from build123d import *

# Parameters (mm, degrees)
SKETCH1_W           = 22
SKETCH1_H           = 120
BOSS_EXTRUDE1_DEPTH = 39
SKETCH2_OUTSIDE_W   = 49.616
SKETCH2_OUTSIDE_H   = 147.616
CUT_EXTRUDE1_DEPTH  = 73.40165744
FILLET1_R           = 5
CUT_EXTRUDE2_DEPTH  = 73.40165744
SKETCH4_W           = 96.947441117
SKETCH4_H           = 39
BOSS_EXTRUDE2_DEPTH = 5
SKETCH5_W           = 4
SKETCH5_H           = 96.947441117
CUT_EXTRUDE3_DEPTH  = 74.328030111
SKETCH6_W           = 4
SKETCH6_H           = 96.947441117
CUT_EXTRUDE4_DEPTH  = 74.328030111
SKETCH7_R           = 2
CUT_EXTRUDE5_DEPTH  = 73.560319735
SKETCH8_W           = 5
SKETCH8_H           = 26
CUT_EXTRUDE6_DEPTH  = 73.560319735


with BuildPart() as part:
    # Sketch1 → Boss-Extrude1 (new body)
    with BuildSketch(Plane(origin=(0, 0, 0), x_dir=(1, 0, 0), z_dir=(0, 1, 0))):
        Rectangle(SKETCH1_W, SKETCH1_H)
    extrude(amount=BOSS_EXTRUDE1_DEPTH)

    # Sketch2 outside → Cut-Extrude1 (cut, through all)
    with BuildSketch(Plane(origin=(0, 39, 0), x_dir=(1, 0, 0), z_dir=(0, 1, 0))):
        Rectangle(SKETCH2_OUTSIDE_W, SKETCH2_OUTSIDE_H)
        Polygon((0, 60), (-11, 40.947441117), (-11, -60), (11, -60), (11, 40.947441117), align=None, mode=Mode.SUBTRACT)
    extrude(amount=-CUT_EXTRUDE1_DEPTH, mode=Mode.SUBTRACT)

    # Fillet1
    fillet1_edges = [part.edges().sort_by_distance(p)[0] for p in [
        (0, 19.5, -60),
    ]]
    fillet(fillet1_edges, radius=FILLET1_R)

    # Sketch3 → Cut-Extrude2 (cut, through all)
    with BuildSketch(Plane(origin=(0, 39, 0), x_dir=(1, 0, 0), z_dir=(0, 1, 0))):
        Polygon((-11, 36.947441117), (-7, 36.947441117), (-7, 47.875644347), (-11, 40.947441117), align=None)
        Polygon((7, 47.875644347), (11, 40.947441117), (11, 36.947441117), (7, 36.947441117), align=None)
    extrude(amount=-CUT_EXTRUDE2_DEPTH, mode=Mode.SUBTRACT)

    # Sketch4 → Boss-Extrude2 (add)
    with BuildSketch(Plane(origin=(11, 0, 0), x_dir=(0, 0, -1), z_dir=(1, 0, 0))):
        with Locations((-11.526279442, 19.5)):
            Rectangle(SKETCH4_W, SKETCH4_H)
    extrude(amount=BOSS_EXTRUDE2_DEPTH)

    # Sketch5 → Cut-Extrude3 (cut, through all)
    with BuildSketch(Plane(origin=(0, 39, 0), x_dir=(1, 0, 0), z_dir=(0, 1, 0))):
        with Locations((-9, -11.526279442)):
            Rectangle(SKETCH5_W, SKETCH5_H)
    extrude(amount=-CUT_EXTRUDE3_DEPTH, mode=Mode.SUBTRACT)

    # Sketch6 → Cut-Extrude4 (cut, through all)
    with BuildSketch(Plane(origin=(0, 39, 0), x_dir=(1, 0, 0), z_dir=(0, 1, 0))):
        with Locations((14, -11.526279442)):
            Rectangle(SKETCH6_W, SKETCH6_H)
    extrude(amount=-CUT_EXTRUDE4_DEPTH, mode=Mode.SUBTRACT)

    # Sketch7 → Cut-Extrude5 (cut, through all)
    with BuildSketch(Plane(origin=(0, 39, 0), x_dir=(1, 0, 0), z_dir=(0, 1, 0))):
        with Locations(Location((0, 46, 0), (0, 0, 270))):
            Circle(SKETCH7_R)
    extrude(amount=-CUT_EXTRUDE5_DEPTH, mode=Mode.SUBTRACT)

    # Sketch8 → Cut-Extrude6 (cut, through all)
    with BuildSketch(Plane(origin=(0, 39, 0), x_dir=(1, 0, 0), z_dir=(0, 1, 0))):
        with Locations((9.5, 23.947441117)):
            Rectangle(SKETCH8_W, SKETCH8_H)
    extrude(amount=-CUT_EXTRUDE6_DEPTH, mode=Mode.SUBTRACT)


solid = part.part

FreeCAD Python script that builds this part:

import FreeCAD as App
import Part
import Sketcher
Q = App.Units.Quantity


def edges_at(feature, points):
    """Names of the edges that pass closest to the given points."""
    edges = feature.Shape.Edges
    near = lambda p: min(range(len(edges)), key=lambda i: edges[i].distToShape(Part.Vertex(*p))[0])
    return sorted({f"Edge{near(p) + 1}" for p in points})


def add_polygon(sketch, points):
    """Adds a closed chain of lines whose ends are joined by coincident constraints."""
    first, n = sketch.GeometryCount, len(points)
    for a, b in zip(points, points[1:] + points[:1]):
        sketch.addGeometry(Part.LineSegment(App.Vector(*a, 0), App.Vector(*b, 0)), False)
    for i in range(n):
        sketch.addConstraint(Sketcher.Constraint("Coincident", first + i, 2, first + (i + 1) % n, 1))

doc = App.newDocument("Part")
body = doc.addObject("PartDesign::Body", "Body")

# Sketch on XZ plane
sketch1 = doc.addObject("Sketcher::SketchObject", "Sketch")
body.addObject(sketch1)
sketch1.AttachmentSupport = (doc.XZ_Plane, [""])
sketch1.MapMode = "FlatFace"
add_polygon(sketch1, [(-11, -60), (-11, 60), (11, 60), (11, -60)])  # lines 0-3
sketch1.addConstraint([
    Sketcher.Constraint("Vertical", 0),
    Sketcher.Constraint("Horizontal", 1),
    Sketcher.Constraint("Vertical", 2),
    Sketcher.Constraint("Horizontal", 3),
    Sketcher.Constraint("Symmetric", 0, 2, 2, 2, -1, 1),
    Sketcher.Constraint("DistanceX", 1, 1, 1, 2, 22.0),
    Sketcher.Constraint("DistanceY", 0, 1, 0, 2, 120.0),
])
pad1 = doc.addObject("PartDesign::Pad", "Pad")
body.addObject(pad1)
pad1.Profile = sketch1
pad1.Length = 39
pad1.Reversed = True

# Sketch on XZ plane
sketch2 = doc.addObject("Sketcher::SketchObject", "Sketch001")
body.addObject(sketch2)
sketch2.AttachmentSupport = (doc.XZ_Plane, [""])
sketch2.MapMode = "FlatFace"
sketch2.AttachmentOffset = App.Placement(App.Vector(0, 0, -39), App.Rotation())
add_polygon(sketch2, [(-24.808, -73.808), (-24.808, 73.808), (24.808, 73.808), (24.808, -73.808)])  # lines 0-3
add_polygon(sketch2, [(-11, -40.947441), (0, -60), (11, -40.947441), (11, 60), (-11, 60)])  # lines 4-8
sketch2.addConstraint([
    Sketcher.Constraint("Vertical", 0),
    Sketcher.Constraint("Horizontal", 1),
    Sketcher.Constraint("Vertical", 2),
    Sketcher.Constraint("Horizontal", 3),
    Sketcher.Constraint("Vertical", 6),
    Sketcher.Constraint("Horizontal", 7),
    Sketcher.Constraint("Vertical", 8),
    Sketcher.Constraint("Symmetric", 0, 2, 2, 2, -1, 1),
    Sketcher.Constraint("Symmetric", 5, 2, 8, 2, -2),
    Sketcher.Constraint("PointOnObject", 4, 2, -2),
    Sketcher.Constraint("DistanceX", 7, 2, 7, 1, 22.0),
    Sketcher.Constraint("Angle", 4, Q("-60 deg")),
    Sketcher.Constraint("DistanceY", 4, 2, -1, 1, 60.0),
    Sketcher.Constraint("DistanceY", -1, 1, 6, 2, 60.0),
    Sketcher.Constraint("DistanceX", 1, 1, 1, 2, 49.616),
    Sketcher.Constraint("DistanceY", 0, 1, 0, 2, 147.616),
])
pocket1 = doc.addObject("PartDesign::Pocket", "Pocket")
body.addObject(pocket1)
pocket1.Profile = sketch2
pocket1.Type = "ThroughAll"
pocket1.Reversed = True
doc.recompute()

fillet = doc.addObject("PartDesign::Fillet", "Fillet")
body.addObject(fillet)
fillet.Base = (pocket1, edges_at(pocket1, [(0, 19.5, -60)]))
fillet.Radius = 5

# Sketch on XZ plane
sketch3 = doc.addObject("Sketcher::SketchObject", "Sketch002")
body.addObject(sketch3)
sketch3.AttachmentSupport = (doc.XZ_Plane, [""])
sketch3.MapMode = "FlatFace"
sketch3.AttachmentOffset = App.Placement(App.Vector(0, 0, -39), App.Rotation())
add_polygon(sketch3, [(-11, -36.947441), (-7, -36.947441), (-7, -47.875644), (-11, -40.947441)])  # lines 0-3
add_polygon(sketch3, [(11, -40.947441), (7, -47.875644), (7, -36.947441), (11, -36.947441)])  # lines 4-7
sketch3.addConstraint([
    Sketcher.Constraint("Horizontal", 0),
    Sketcher.Constraint("Vertical", 1),
    Sketcher.Constraint("Vertical", 3),
    Sketcher.Constraint("Vertical", 5),
    Sketcher.Constraint("Horizontal", 6),
    Sketcher.Constraint("Vertical", 7),
    Sketcher.Constraint("Symmetric", 1, 2, 4, 2, -2),
    Sketcher.Constraint("Symmetric", 3, 2, 6, 2, -2),
    Sketcher.Constraint("Horizontal", 2, 2, 7, 2),
    Sketcher.Constraint("Equal", 6, 3),
    Sketcher.Constraint("DistanceX", 0, 1, 0, 2, 4.0),
    Sketcher.Constraint("Angle", 2, Q("120 deg")),
    Sketcher.Constraint("DistanceX", 0, 2, -1, 1, 7.0),
    Sketcher.Constraint("DistanceY", 0, 2, -1, 1, 36.947441),
])
pocket2 = doc.addObject("PartDesign::Pocket", "Pocket001")
body.addObject(pocket2)
pocket2.Profile = sketch3
pocket2.Type = "ThroughAll"
pocket2.Reversed = True

# Sketch on YZ plane
sketch4 = doc.addObject("Sketcher::SketchObject", "Sketch003")
body.addObject(sketch4)
sketch4.AttachmentSupport = (doc.YZ_Plane, [""])
sketch4.MapMode = "FlatFace"
sketch4.AttachmentOffset = App.Placement(App.Vector(0, 0, 11), App.Rotation())
add_polygon(sketch4, [(39, 60), (0, 60), (0, -36.947441), (39, -36.947441)])  # lines 0-3
sketch4.addConstraint([
    Sketcher.Constraint("Horizontal", 0),
    Sketcher.Constraint("Vertical", 1),
    Sketcher.Constraint("Horizontal", 2),
    Sketcher.Constraint("Vertical", 3),
    Sketcher.Constraint("PointOnObject", 0, 2, -2),
    Sketcher.Constraint("DistanceX", 0, 2, 0, 1, 39.0),
    Sketcher.Constraint("DistanceY", -1, 1, 0, 2, 60.0),
    Sketcher.Constraint("DistanceY", 1, 2, 1, 1, 96.947441),
])
pad2 = doc.addObject("PartDesign::Pad", "Pad001")
body.addObject(pad2)
pad2.Profile = sketch4
pad2.Length = 5

# Sketch on XZ plane
sketch5 = doc.addObject("Sketcher::SketchObject", "Sketch004")
body.addObject(sketch5)
sketch5.AttachmentSupport = (doc.XZ_Plane, [""])
sketch5.MapMode = "FlatFace"
sketch5.AttachmentOffset = App.Placement(App.Vector(0, 0, -39), App.Rotation())
add_polygon(sketch5, [(-11, -36.947441), (-11, 60), (-7, 60), (-7, -36.947441)])  # lines 0-3
sketch5.addConstraint([
    Sketcher.Constraint("Vertical", 0),
    Sketcher.Constraint("Horizontal", 1),
    Sketcher.Constraint("Vertical", 2),
    Sketcher.Constraint("Horizontal", 3),
    Sketcher.Constraint("DistanceX", 1, 1, 1, 2, 4.0),
    Sketcher.Constraint("DistanceX", 0, 2, -1, 1, 11.0),
    Sketcher.Constraint("DistanceY", -1, 1, 0, 2, 60.0),
    Sketcher.Constraint("DistanceY", 0, 1, 0, 2, 96.947441),
])
pocket3 = doc.addObject("PartDesign::Pocket", "Pocket002")
body.addObject(pocket3)
pocket3.Profile = sketch5
pocket3.Type = "ThroughAll"
pocket3.Reversed = True

# Sketch on XZ plane
sketch6 = doc.addObject("Sketcher::SketchObject", "Sketch005")
body.addObject(sketch6)
sketch6.AttachmentSupport = (doc.XZ_Plane, [""])
sketch6.MapMode = "FlatFace"
sketch6.AttachmentOffset = App.Placement(App.Vector(0, 0, -39), App.Rotation())
add_polygon(sketch6, [(12, -36.947441), (12, 60), (16, 60), (16, -36.947441)])  # lines 0-3
sketch6.addConstraint([
    Sketcher.Constraint("Vertical", 0),
    Sketcher.Constraint("Horizontal", 1),
    Sketcher.Constraint("Vertical", 2),
    Sketcher.Constraint("Horizontal", 3),
    Sketcher.Constraint("DistanceX", 1, 1, 1, 2, 4.0),
    Sketcher.Constraint("DistanceX", -1, 1, 0, 2, 12.0),
    Sketcher.Constraint("DistanceY", -1, 1, 0, 2, 60.0),
    Sketcher.Constraint("DistanceY", 0, 1, 0, 2, 96.947441),
])
pocket4 = doc.addObject("PartDesign::Pocket", "Pocket003")
body.addObject(pocket4)
pocket4.Profile = sketch6
pocket4.Type = "ThroughAll"
pocket4.Reversed = True

# Sketch on XZ plane
sketch7 = doc.addObject("Sketcher::SketchObject", "Sketch006")
body.addObject(sketch7)
sketch7.AttachmentSupport = (doc.XZ_Plane, [""])
sketch7.MapMode = "FlatFace"
sketch7.AttachmentOffset = App.Placement(App.Vector(0, 0, -39), App.Rotation())
sketch7.addGeometry(Part.Circle(App.Vector(0, -46, 0), App.Vector(0, 0, 1), 2), False)
sketch7.addConstraint([
    Sketcher.Constraint("PointOnObject", 0, 3, -2),
    Sketcher.Constraint("Diameter", 0, 4.0),
    Sketcher.Constraint("DistanceY", 0, 3, -1, 1, 46.0),
])
pocket5 = doc.addObject("PartDesign::Pocket", "Pocket004")
body.addObject(pocket5)
pocket5.Profile = sketch7
pocket5.Type = "ThroughAll"
pocket5.Reversed = True

# Sketch on XZ plane
sketch8 = doc.addObject("Sketcher::SketchObject", "Sketch007")
body.addObject(sketch8)
sketch8.AttachmentSupport = (doc.XZ_Plane, [""])
sketch8.MapMode = "FlatFace"
sketch8.AttachmentOffset = App.Placement(App.Vector(0, 0, -39), App.Rotation())
add_polygon(sketch8, [(7, -36.947441), (7, -10.947441), (12, -10.947441), (12, -36.947441)])  # lines 0-3
sketch8.addConstraint([
    Sketcher.Constraint("Vertical", 0),
    Sketcher.Constraint("Horizontal", 1),
    Sketcher.Constraint("Vertical", 2),
    Sketcher.Constraint("Horizontal", 3),
    Sketcher.Constraint("DistanceX", 1, 1, 1, 2, 5.0),
    Sketcher.Constraint("DistanceY", 0, 1, 0, 2, 26.0),
    Sketcher.Constraint("DistanceX", -1, 1, 0, 2, 7.0),
    Sketcher.Constraint("DistanceY", 0, 2, -1, 1, 10.947441),
])
pocket6 = doc.addObject("PartDesign::Pocket", "Pocket005")
body.addObject(pocket6)
pocket6.Profile = sketch8
pocket6.Type = "ThroughAll"
pocket6.Reversed = True

doc.recompute()
